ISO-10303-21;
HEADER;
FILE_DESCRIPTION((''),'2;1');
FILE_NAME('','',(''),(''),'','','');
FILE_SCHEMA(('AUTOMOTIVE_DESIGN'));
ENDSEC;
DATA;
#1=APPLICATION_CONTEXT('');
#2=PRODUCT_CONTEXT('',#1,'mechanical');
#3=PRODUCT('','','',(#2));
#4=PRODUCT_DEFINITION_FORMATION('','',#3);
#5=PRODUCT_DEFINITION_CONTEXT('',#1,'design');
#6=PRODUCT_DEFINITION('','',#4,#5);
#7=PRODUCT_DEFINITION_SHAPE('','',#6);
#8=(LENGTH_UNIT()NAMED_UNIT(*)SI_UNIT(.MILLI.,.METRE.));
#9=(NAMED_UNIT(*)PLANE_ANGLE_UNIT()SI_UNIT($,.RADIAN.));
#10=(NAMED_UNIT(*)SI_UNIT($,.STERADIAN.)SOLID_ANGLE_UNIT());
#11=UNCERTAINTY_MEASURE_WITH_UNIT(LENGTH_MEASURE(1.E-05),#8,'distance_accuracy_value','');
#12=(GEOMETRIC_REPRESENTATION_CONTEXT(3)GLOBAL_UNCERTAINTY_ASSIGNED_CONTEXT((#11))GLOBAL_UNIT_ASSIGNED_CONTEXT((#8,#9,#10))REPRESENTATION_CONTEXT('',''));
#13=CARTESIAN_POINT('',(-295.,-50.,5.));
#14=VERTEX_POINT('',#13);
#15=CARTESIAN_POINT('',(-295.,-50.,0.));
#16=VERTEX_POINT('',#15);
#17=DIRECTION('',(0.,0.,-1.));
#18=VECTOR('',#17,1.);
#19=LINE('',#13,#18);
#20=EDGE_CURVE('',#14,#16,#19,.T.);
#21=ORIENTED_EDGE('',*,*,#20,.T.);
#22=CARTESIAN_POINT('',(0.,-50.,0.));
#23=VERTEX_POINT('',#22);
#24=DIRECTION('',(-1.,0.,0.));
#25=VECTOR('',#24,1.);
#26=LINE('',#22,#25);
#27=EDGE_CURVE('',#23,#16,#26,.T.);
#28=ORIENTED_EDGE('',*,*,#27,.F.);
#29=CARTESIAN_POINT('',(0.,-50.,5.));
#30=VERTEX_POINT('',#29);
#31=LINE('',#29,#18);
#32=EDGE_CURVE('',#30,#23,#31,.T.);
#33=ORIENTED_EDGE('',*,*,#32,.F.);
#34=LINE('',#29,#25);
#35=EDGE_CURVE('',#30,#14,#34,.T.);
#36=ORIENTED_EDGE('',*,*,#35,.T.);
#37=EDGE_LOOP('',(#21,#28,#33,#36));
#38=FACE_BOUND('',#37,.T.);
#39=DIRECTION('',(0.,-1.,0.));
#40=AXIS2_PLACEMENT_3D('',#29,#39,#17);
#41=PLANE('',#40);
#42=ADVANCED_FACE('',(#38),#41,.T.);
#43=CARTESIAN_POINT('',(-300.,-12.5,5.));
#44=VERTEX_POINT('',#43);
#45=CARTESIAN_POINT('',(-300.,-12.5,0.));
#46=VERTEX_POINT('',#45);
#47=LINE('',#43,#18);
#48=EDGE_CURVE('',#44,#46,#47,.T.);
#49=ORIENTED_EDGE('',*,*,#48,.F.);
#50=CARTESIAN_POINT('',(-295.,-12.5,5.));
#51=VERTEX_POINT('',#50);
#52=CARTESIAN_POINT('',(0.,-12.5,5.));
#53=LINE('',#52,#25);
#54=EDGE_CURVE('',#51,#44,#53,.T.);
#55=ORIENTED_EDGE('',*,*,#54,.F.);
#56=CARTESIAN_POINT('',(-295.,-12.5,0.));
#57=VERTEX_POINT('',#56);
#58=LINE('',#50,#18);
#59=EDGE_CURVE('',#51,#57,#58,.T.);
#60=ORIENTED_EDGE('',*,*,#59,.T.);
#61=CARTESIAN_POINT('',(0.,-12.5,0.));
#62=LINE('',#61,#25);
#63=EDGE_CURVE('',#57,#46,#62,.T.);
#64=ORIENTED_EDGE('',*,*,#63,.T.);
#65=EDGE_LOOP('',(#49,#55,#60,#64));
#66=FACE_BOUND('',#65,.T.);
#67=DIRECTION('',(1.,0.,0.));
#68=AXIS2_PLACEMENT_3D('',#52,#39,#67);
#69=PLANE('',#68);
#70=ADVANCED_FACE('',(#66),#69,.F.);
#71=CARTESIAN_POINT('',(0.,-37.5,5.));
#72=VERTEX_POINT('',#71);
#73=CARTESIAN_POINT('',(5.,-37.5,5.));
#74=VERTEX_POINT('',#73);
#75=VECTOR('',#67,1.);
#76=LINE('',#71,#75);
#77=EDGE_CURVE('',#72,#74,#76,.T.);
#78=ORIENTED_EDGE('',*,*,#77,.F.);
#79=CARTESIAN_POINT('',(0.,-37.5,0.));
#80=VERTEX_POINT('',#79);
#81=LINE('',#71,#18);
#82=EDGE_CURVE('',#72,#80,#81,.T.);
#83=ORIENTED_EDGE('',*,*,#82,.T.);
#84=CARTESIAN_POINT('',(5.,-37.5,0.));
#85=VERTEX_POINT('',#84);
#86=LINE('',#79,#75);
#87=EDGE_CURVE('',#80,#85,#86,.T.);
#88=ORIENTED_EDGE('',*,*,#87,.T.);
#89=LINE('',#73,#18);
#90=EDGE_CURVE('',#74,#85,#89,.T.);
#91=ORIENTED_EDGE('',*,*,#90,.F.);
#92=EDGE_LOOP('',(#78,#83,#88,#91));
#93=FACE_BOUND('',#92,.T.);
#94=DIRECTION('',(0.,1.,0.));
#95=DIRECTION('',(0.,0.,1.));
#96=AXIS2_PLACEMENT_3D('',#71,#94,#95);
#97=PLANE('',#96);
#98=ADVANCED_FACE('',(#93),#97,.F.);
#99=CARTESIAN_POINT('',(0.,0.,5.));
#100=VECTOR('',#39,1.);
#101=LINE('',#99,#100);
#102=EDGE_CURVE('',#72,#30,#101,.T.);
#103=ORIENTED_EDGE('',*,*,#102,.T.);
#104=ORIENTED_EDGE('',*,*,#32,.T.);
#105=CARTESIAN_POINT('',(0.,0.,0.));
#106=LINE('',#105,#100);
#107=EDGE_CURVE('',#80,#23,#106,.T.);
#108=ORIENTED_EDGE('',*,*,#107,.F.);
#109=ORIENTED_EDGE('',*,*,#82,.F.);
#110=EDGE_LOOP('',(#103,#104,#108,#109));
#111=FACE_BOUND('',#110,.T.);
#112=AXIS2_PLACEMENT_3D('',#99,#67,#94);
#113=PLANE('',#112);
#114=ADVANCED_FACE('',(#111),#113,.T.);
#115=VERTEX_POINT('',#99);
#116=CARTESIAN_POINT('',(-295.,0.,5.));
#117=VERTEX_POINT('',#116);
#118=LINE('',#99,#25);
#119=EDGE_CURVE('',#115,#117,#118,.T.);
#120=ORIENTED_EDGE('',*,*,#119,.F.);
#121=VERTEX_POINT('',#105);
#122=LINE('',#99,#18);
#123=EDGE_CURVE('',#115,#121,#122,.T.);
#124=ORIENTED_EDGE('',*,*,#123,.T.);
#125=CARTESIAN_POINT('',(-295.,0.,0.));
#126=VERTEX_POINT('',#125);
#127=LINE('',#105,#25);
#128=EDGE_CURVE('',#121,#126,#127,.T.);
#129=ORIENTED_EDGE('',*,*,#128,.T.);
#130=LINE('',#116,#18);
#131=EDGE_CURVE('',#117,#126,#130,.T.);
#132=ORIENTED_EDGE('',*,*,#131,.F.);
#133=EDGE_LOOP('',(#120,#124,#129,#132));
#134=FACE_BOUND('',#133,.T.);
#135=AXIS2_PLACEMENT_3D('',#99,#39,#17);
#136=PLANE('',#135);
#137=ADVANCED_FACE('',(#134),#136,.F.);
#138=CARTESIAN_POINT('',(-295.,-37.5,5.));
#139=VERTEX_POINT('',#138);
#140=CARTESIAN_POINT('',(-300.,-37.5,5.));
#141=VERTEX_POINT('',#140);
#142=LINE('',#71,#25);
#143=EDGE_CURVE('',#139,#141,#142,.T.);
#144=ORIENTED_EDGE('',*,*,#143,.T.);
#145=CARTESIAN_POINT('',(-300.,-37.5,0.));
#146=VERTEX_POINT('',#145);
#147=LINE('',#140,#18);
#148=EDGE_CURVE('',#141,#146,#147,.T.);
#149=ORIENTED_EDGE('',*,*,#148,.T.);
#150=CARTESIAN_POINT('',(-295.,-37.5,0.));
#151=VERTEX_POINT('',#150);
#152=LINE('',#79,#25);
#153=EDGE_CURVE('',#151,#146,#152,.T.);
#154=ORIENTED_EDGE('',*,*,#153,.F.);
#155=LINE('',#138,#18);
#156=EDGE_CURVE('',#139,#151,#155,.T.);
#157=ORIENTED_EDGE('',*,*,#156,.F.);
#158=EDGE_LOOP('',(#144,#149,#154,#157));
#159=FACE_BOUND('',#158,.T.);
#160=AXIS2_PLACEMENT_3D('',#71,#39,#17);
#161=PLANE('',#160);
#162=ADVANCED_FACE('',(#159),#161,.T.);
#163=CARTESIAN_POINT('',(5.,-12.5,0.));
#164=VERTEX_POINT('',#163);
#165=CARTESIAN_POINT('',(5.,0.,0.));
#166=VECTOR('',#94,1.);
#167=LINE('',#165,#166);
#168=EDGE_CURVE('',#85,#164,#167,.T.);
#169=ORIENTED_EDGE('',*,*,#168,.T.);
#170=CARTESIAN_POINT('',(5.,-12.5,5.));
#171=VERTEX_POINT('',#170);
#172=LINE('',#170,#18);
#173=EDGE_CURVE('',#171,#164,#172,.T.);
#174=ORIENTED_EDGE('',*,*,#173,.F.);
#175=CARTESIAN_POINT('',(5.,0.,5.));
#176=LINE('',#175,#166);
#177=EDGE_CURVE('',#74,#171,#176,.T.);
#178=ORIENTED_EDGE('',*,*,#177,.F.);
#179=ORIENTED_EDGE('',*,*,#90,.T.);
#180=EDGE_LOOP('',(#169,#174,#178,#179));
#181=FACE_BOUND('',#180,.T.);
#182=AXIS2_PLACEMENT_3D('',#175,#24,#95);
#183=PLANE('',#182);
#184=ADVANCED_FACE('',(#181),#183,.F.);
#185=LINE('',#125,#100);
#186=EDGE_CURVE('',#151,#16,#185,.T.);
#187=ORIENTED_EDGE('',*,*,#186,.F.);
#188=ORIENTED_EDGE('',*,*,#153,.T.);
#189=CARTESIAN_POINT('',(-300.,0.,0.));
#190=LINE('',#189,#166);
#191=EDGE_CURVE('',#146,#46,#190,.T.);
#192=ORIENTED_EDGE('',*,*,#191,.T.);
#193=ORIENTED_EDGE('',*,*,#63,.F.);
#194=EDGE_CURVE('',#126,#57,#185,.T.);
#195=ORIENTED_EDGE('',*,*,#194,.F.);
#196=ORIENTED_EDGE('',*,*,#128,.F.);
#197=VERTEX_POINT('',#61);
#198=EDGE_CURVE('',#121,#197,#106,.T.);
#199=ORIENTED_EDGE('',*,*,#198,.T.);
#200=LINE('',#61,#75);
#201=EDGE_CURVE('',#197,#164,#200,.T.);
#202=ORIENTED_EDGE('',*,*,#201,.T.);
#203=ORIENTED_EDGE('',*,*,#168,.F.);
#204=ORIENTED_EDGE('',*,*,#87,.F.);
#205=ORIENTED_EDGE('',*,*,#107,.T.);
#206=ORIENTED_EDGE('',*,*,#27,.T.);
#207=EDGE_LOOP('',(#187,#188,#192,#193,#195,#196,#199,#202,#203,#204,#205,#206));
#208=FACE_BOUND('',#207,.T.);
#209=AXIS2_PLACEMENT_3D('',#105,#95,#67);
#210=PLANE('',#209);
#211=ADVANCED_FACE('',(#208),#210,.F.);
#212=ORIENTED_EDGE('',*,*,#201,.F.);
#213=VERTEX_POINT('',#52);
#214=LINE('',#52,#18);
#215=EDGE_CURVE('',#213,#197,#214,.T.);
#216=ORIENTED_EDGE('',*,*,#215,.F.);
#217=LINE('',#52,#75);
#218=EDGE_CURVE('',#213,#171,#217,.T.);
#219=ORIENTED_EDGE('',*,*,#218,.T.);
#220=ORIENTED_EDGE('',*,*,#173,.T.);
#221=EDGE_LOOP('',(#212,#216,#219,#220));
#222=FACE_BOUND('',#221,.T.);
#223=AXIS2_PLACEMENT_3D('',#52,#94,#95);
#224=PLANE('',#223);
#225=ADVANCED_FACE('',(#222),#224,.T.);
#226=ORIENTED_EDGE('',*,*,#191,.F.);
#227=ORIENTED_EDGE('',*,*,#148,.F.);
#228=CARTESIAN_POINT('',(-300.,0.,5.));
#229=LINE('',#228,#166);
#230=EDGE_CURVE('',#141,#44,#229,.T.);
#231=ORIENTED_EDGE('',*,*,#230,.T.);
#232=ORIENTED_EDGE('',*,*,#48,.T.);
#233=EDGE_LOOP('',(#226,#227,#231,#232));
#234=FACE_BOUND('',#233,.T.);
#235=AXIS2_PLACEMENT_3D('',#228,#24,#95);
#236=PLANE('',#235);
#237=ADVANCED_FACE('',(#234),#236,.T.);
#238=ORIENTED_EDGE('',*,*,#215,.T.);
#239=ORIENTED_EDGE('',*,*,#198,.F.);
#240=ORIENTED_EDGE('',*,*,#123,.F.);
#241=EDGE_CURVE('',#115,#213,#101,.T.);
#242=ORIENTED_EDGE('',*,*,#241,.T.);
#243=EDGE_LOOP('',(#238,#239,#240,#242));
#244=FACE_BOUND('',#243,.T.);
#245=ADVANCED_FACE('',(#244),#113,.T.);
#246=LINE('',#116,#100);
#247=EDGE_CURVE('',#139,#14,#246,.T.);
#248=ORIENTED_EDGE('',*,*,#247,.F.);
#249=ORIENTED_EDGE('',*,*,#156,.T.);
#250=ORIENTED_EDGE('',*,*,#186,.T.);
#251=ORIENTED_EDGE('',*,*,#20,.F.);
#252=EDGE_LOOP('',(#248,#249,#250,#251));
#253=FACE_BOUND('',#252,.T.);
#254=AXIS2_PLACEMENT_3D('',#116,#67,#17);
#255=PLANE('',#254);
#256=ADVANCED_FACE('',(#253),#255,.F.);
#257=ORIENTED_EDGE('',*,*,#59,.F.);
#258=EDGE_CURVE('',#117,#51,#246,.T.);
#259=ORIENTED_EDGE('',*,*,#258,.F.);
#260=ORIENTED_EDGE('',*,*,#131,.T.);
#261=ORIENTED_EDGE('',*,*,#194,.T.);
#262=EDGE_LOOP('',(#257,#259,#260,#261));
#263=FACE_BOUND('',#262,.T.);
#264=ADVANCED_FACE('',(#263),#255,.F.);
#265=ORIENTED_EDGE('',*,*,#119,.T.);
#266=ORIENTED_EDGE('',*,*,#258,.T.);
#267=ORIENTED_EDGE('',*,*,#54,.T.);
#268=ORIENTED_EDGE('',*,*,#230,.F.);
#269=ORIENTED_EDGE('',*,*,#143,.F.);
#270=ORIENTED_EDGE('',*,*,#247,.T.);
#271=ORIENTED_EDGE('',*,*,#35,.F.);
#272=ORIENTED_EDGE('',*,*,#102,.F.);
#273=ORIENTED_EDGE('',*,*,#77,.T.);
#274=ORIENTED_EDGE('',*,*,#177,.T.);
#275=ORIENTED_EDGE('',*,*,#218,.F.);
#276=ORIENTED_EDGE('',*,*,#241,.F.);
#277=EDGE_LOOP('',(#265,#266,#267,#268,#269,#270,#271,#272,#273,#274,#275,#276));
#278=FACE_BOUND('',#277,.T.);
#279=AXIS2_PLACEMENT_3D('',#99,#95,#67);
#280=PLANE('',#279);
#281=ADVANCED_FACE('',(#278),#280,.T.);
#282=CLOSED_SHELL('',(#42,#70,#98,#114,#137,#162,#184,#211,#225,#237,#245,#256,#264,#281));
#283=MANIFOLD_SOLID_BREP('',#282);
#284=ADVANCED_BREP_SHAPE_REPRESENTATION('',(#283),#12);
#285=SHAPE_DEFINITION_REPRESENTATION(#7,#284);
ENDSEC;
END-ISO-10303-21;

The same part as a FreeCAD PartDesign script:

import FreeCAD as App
import Part
import Sketcher
from FreeCAD import Vector

doc = App.newDocument("Part")
params = doc.addObject("Spreadsheet::Sheet", "Params")
for row, (alias, value) in enumerate([
    ("sketch1_width", "295 mm"),
    ("sketch1_width2", "5 mm"),
    ("sketch1_height", "25 mm"),
    ("sketch1_height2", "12.5 mm"),
    ("pad1_length", "5 mm"),
], start=1):
    params.set(f"A{row}", alias)
    params.set(f"B{row}", "=" + value)
    params.setAlias(f"B{row}", alias)

body = doc.addObject("PartDesign::Body", "Body")

# Sketch on XY plane
sketch1 = doc.addObject("Sketcher::SketchObject", "Sketch")
body.addObject(sketch1)
sketch1.AttachmentSupport = (doc.XY_Plane, [""])
sketch1.MapMode = "FlatFace"
sketch1.addGeometry(Part.LineSegment(Vector(-295, -38, 0), Vector(-295, -50, 0)), False)
sketch1.addGeometry(Part.LineSegment(Vector(-295, -50, 0), Vector(0, -50, 0)), False)
sketch1.addGeometry(Part.LineSegment(Vector(0, -50, 0), Vector(0, -38, 0)), False)
sketch1.addGeometry(Part.LineSegment(Vector(0, -38, 0), Vector(5, -38, 0)), False)
sketch1.addGeometry(Part.LineSegment(Vector(5, -38, 0), Vector(5, -12, 0)), False)
sketch1.addGeometry(Part.LineSegment(Vector(5, -12, 0), Vector(0, -12, 0)), False)
sketch1.addGeometry(Part.LineSegment(Vector(0, -12, 0), Vector(0, 0, 0)), False)
sketch1.addGeometry(Part.LineSegment(Vector(0, 0, 0), Vector(-295, 0, 0)), False)
sketch1.addGeometry(Part.LineSegment(Vector(-295, 0, 0), Vector(-295, -12, 0)), False)
sketch1.addGeometry(Part.LineSegment(Vector(-295, -12, 0), Vector(-300, -12, 0)), False)
sketch1.addGeometry(Part.LineSegment(Vector(-300, -12, 0), Vector(-300, -38, 0)), False)
sketch1.addGeometry(Part.LineSegment(Vector(-300, -38, 0), Vector(-295, -38, 0)), False)
sketch1.addConstraint(Sketcher.Constraint("Coincident", 0, 2, 1, 1))
sketch1.addConstraint(Sketcher.Constraint("Coincident", 1, 2, 2, 1))
sketch1.addConstraint(Sketcher.Constraint("Coincident", 2, 2, 3, 1))
sketch1.addConstraint(Sketcher.Constraint("Coincident", 3, 2, 4, 1))
sketch1.addConstraint(Sketcher.Constraint("Coincident", 4, 2, 5, 1))
sketch1.addConstraint(Sketcher.Constraint("Coincident", 5, 2, 6, 1))
sketch1.addConstraint(Sketcher.Constraint("Coincident", 6, 2, 7, 1))
sketch1.addConstraint(Sketcher.Constraint("Coincident", 7, 2, 8, 1))
sketch1.addConstraint(Sketcher.Constraint("Coincident", 8, 2, 9, 1))
sketch1.addConstraint(Sketcher.Constraint("Coincident", 9, 2, 10, 1))
sketch1.addConstraint(Sketcher.Constraint("Coincident", 10, 2, 11, 1))
sketch1.addConstraint(Sketcher.Constraint("Coincident", 11, 2, 0, 1))
sketch1.addConstraint(Sketcher.Constraint("Vertical", 0))
sketch1.addConstraint(Sketcher.Constraint("Horizontal", 1))
sketch1.addConstraint(Sketcher.Constraint("Vertical", 2))
sketch1.addConstraint(Sketcher.Constraint("Horizontal", 3))
sketch1.addConstraint(Sketcher.Constraint("Vertical", 4))
sketch1.addConstraint(Sketcher.Constraint("Horizontal", 5))
sketch1.addConstraint(Sketcher.Constraint("Vertical", 6))
sketch1.addConstraint(Sketcher.Constraint("Horizontal", 7))
sketch1.addConstraint(Sketcher.Constraint("Vertical", 8))
sketch1.addConstraint(Sketcher.Constraint("Horizontal", 9))
sketch1.addConstraint(Sketcher.Constraint("Vertical", 10))
sketch1.addConstraint(Sketcher.Constraint("Horizontal", 11))
sketch1.addConstraint(Sketcher.Constraint("Coincident", 6, 2, -1, 1))
sketch1.addConstraint(Sketcher.Constraint("PointOnObject", 1, 2, -2))
sketch1.addConstraint(Sketcher.Constraint("Horizontal", 5, 2, 8, 2))
sketch1.addConstraint(Sketcher.Constraint("Horizontal", 3, 2, 10, 2))
sketch1.addConstraint(Sketcher.Constraint("Vertical", 0, 2, 7, 2))
sketch1.addConstraint(Sketcher.Constraint("Equal", 5, 9))
sketch1.addConstraint(Sketcher.Constraint("Equal", 2, 6))
sketch1.addConstraint(Sketcher.Constraint("DistanceX", 1, 1, 1, 2, 295.0))
sketch1.addConstraint(Sketcher.Constraint("DistanceX", 3, 1, 3, 2, 5.0))
sketch1.addConstraint(Sketcher.Constraint("DistanceY", 4, 1, 4, 2, 25.0))
sketch1.addConstraint(Sketcher.Constraint("DistanceY", 0, 2, 0, 1, 12.5))
sketch1.setExpression("Constraints[31]", "Params.sketch1_width")
sketch1.setExpression("Constraints[32]", "Params.sketch1_width2")
sketch1.setExpression("Constraints[33]", "Params.sketch1_height")
sketch1.setExpression("Constraints[34]", "Params.sketch1_height2")
pad1 = doc.addObject("PartDesign::Pad", "Pad")
body.addObject(pad1)
pad1.Profile = sketch1
pad1.setExpression("Length", "Params.pad1_length")

doc.recompute()
